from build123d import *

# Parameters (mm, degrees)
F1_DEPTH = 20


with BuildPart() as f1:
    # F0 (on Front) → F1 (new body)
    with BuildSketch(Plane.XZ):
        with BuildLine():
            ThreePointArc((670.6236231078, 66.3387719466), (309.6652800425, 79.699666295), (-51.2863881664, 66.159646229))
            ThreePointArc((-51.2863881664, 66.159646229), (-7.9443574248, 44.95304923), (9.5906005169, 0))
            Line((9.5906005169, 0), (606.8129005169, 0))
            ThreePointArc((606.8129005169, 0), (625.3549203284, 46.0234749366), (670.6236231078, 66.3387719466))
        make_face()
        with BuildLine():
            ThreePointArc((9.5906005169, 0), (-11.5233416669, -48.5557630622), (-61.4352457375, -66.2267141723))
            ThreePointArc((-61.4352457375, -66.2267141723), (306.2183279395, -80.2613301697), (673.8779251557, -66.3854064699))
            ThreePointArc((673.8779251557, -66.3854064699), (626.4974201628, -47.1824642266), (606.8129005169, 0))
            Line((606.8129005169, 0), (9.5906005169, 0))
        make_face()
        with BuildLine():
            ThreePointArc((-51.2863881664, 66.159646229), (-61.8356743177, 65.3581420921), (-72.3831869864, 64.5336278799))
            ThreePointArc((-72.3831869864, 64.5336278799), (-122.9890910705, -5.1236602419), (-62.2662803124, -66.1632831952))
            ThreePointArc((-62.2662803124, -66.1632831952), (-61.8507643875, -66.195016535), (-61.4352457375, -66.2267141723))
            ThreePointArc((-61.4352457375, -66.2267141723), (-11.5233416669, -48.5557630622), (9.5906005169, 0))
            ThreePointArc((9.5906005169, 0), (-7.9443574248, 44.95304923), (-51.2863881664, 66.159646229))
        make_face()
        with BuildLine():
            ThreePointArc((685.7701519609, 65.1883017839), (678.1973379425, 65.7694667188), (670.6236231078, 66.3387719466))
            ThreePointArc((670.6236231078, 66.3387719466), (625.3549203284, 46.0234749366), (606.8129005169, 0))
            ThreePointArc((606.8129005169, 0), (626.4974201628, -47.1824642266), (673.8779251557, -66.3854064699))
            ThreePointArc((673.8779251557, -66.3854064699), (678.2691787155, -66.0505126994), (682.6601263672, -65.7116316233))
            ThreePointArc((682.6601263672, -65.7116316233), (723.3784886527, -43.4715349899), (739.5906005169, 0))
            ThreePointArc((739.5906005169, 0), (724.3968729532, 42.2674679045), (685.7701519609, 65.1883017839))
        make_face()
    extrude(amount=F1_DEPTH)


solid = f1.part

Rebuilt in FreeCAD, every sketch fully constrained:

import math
import FreeCAD as App
import Part
import Sketcher

V = App.Vector
Q = App.Units.Quantity

doc = App.newDocument("Part")
params = doc.addObject("Spreadsheet::Sheet", "Params")
for row, (alias, value) in enumerate([
    ("sketch1_radius", "4850 mm"),
    ("pad1_length", "20 mm"),
], start=1):
    params.set(f"A{row}", alias)
    params.set(f"B{row}", "=" + value)
    params.setAlias(f"B{row}", alias)

body = doc.addObject("PartDesign::Body", "Body")

sketch1 = doc.addObject("Sketcher::SketchObject", "Sketch")
body.addObject(sketch1)
sketch1.AttachmentSupport = (doc.XZ_Plane, [""])
sketch1.MapMode = "FlatFace"
sketch1.addGeometry(Part.ArcOfCircle(Part.Circle(V(310.868698, -4770.300184, 0), V(0, 0, 1), 4850), math.radians(85.746106), math.radians(94.282328)), False)
sketch1.addGeometry(Part.ArcOfCircle(Part.Circle(V(310.868699, -4770.300195, 0), V(0, 0, 1), 4850.000011), math.radians(94.282328), math.radians(94.532295)), False)
sketch1.addGeometry(Part.ArcOfCircle(Part.Circle(V(-56.798249, 0, 0), V(0, 0, 1), 66.38885), math.radians(103.577024), math.radians(265.275556)), False)
sketch1.addGeometry(Part.ArcOfCircle(Part.Circle(V(307.264373, 4769.729884, 0), V(0, 0, 1), 4849.991302), math.radians(-94.369716), math.radians(-94.35987)), False)
sketch1.addGeometry(Part.ArcOfCircle(Part.Circle(V(307.265035, 4769.738557, 0), V(0, 0, 1), 4850), math.radians(-94.35987), math.radians(-85.66486)), False)
sketch1.addGeometry(Part.ArcOfCircle(Part.Circle(V(307.265042, 4769.738473, 0), V(0, 0, 1), 4849.999915), math.radians(-85.66486), math.radians(-85.560806)), False)
sketch1.addGeometry(Part.ArcOfCircle(Part.Circle(V(673.201751, 0, 0), V(0, 0, 1), 66.38885), math.radians(-81.809238), math.radians(0)), False)
sketch1.addGeometry(Part.ArcOfCircle(Part.Circle(V(673.201751, 0, 0), V(0, 0, 1), 66.38885), math.radians(0), math.radians(79.087192)), False)
sketch1.addGeometry(Part.ArcOfCircle(Part.Circle(V(310.868701, -4770.300154, 0), V(0, 0, 1), 4849.99997), math.radians(85.566656), math.radians(85.746106)), False)
sketch1.addConstraint(Sketcher.Constraint("Coincident", 0, 2, 1, 1))
sketch1.addConstraint(Sketcher.Constraint("Coincident", 1, 2, 2, 1))
sketch1.addConstraint(Sketcher.Constraint("Coincident", 2, 2, 3, 1))
sketch1.addConstraint(Sketcher.Constraint("Coincident", 3, 2, 4, 1))
sketch1.addConstraint(Sketcher.Constraint("Coincident", 4, 2, 5, 1))
sketch1.addConstraint(Sketcher.Constraint("Coincident", 5, 2, 6, 1))
sketch1.addConstraint(Sketcher.Constraint("Tangent", 6, 2, 7, 1))
sketch1.addConstraint(Sketcher.Constraint("Coincident", 7, 2, 8, 1))
sketch1.addConstraint(Sketcher.Constraint("Coincident", 8, 2, 0, 1))
sketch1.addConstraint(Sketcher.Constraint("Equal", 0, 4))
sketch1.addConstraint(Sketcher.Constraint("Equal", 2, 6))
sketch1.addConstraint(Sketcher.Constraint("Equal", 6, 7))
sketch1.addConstraint(Sketcher.Constraint("PointOnObject", 2, 3, -1))
sketch1.addConstraint(Sketcher.Constraint("PointOnObject", 6, 3, -1))
sketch1.addConstraint(Sketcher.Constraint("PointOnObject", 6, 2, -1))
sketch1.addConstraint(Sketcher.Constraint("Vertical", 0, 3, 1, 3))
sketch1.addConstraint(Sketcher.Constraint("Vertical", 1, 3, 8, 3))
sketch1.addConstraint(Sketcher.Constraint("Radius", 0, Q("4850 mm")))
sketch1.addConstraint(Sketcher.Constraint("DistanceX", 2, 3, 6, 3, Q("730 mm")))
sketch1.addConstraint(Sketcher.Constraint("Radius", 3, Q("4849.991302 mm")))
sketch1.addConstraint(Sketcher.Constraint("Radius", 1, Q("4850.000011 mm")))
sketch1.addConstraint(Sketcher.Constraint("Radius", 2, Q("66.38885 mm")))
sketch1.addConstraint(Sketcher.Constraint("Radius", 8, Q("4849.99997 mm")))
sketch1.addConstraint(Sketcher.Constraint("Radius", 5, Q("4849.999915 mm")))
sketch1.addConstraint(Sketcher.Constraint("DistanceX", -1, 1, 0, 3, Q("310.868698 mm")))
sketch1.addConstraint(Sketcher.Constraint("DistanceX", -1, 1, 6, 2, Q("739.590601 mm")))
sketch1.addConstraint(Sketcher.Constraint("DistanceY", -1, 1, 7, 2, Q("65.188302 mm")))
sketch1.addConstraint(Sketcher.Constraint("DistanceX", 1, 2, 0, 2, Q("21.096799 mm")))
sketch1.addConstraint(Sketcher.Constraint("DistanceX", 4, 2, 5, 2, Q("8.782201 mm")))
sketch1.addConstraint(Sketcher.Constraint("DistanceX", -1, 1, 5, 3, Q("307.265042 mm")))
sketch1.addConstraint(Sketcher.Constraint("DistanceX", 2, 2, -1, 1, Q("62.26628 mm")))
sketch1.addConstraint(Sketcher.Constraint("DistanceY", -1, 1, 8, 2, Q("66.338772 mm")))
sketch1.addConstraint(Sketcher.Constraint("DistanceY", 0, 3, 3, 3, Q("9540.030068 mm")))
sketch1.addConstraint(Sketcher.Constraint("DistanceX", 3, 3, 4, 3, Q("0.000662 mm")))
sketch1.addConstraint(Sketcher.Constraint("DistanceY", 3, 2, 2, 2, Q("0.063431 mm")))
sketch1.setExpression("Constraints[17]", "Params.sketch1_radius")
pad1 = doc.addObject("PartDesign::Pad", "Pad")
body.addObject(pad1)
pad1.Profile = sketch1
pad1.setExpression("Length", "Params.pad1_length")

doc.recompute()
